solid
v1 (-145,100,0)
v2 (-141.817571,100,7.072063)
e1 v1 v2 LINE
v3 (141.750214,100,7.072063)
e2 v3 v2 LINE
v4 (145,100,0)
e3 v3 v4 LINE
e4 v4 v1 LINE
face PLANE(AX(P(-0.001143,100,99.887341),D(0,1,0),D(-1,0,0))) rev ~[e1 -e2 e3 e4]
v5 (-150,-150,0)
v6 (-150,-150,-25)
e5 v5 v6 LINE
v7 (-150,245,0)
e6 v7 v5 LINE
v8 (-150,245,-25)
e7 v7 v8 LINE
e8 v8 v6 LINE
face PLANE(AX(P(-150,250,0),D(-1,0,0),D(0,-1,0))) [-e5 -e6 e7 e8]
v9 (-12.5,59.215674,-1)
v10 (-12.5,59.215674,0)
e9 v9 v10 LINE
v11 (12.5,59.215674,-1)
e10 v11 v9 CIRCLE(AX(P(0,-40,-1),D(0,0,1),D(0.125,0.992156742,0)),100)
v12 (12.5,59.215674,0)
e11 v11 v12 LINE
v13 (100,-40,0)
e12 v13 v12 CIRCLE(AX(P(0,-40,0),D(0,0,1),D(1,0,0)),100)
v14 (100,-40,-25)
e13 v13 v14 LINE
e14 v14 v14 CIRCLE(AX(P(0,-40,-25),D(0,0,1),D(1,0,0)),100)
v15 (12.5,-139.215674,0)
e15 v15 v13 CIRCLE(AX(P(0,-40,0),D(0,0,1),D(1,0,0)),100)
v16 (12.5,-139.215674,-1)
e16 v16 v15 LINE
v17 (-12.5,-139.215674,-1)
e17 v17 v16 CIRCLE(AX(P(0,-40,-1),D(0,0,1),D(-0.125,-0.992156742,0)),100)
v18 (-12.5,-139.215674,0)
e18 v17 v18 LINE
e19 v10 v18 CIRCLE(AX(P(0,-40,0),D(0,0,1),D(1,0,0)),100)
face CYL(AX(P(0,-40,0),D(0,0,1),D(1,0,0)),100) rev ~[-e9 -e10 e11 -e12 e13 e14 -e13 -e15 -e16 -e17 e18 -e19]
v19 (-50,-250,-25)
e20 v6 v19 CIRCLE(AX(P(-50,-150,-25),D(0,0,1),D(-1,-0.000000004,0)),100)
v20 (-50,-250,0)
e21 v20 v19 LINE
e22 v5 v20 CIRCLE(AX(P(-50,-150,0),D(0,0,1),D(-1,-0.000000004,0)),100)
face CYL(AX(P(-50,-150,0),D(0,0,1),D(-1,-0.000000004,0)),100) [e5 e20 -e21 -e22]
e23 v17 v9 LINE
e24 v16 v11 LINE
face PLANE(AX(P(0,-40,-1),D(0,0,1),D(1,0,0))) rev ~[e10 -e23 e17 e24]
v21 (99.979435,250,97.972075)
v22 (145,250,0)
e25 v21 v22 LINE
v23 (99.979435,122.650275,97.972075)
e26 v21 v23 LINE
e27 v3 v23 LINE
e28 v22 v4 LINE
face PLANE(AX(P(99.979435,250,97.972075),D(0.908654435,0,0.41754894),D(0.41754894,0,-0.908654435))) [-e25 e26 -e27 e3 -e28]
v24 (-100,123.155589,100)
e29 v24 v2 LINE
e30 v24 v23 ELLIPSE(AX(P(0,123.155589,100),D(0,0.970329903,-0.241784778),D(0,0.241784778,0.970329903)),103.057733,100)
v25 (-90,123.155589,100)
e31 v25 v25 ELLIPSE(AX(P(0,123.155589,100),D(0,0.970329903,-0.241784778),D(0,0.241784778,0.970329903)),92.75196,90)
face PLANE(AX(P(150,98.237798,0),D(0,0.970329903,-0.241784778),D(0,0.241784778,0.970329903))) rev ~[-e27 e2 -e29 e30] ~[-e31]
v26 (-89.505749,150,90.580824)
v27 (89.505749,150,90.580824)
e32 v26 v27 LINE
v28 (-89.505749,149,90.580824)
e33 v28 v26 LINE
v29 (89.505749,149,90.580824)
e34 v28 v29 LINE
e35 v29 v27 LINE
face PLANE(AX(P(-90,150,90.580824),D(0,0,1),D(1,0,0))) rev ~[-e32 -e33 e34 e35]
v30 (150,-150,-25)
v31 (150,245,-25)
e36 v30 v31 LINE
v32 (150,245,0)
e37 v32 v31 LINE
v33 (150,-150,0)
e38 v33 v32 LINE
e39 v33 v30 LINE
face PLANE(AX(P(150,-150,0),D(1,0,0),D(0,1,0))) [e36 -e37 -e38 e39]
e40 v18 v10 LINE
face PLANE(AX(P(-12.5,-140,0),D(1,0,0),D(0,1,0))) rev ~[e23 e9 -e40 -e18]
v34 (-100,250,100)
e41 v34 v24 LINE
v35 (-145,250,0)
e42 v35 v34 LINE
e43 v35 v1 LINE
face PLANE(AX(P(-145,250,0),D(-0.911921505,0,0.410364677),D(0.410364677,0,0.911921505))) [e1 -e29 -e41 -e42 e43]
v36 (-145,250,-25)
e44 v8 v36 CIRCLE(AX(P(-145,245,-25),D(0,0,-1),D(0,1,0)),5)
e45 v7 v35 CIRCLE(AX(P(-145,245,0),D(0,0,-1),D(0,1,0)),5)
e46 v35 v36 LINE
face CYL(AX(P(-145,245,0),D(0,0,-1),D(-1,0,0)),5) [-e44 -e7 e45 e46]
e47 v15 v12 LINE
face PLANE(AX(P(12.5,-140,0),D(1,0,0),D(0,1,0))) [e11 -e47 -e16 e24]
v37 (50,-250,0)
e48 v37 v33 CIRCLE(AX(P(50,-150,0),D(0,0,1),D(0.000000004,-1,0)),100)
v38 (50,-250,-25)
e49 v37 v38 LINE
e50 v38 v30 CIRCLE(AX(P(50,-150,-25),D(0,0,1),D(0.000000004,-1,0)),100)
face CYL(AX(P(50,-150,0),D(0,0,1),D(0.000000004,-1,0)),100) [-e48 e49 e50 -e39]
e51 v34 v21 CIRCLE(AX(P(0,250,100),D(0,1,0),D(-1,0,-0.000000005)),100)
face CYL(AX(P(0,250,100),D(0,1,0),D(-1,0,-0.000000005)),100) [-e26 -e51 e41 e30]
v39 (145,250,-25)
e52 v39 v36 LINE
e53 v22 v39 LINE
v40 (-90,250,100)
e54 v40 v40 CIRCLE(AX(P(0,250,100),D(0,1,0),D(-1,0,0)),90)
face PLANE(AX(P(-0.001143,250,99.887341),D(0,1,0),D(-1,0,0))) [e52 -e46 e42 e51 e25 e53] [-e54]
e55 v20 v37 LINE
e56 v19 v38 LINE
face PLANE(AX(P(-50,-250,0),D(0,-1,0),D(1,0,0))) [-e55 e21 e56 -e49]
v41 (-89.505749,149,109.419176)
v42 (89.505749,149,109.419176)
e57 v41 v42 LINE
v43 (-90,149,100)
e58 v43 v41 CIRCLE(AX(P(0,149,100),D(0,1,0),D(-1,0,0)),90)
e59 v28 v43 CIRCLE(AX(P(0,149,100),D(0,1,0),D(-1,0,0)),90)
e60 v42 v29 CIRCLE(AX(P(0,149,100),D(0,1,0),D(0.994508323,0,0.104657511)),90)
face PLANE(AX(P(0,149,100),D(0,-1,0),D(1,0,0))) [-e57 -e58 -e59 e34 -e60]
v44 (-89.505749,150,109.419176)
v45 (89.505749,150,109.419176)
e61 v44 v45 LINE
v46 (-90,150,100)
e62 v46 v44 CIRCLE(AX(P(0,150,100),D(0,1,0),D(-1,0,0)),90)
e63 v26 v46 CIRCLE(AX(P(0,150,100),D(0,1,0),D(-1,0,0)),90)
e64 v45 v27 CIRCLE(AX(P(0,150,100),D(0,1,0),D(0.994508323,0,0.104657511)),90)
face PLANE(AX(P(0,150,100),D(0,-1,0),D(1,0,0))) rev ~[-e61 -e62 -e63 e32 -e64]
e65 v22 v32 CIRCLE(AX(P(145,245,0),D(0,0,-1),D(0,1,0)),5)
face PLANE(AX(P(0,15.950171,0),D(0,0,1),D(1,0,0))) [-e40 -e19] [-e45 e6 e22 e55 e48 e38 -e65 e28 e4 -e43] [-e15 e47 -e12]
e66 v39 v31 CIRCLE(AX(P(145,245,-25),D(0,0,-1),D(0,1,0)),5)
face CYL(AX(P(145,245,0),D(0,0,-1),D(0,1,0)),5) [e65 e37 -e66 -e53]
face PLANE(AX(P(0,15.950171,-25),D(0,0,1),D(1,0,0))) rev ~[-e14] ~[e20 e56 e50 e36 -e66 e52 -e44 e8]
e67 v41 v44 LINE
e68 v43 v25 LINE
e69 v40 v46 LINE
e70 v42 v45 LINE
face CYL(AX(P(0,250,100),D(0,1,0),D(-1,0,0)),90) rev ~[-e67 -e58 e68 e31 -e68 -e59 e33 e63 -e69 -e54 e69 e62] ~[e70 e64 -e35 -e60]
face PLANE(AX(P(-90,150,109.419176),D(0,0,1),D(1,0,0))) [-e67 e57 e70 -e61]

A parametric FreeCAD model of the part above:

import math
import FreeCAD as App
import Part
import Sketcher
from FreeCAD import Vector


def edges_at(feature, points):
    """Names of the edges that pass closest to the given points."""
    edges = feature.Shape.Edges
    near = lambda p: min(range(len(edges)), key=lambda i: edges[i].distToShape(Part.Vertex(*p))[0])
    return sorted({f"Edge{near(p) + 1}" for p in points})


def add_polygon(sketch, points):
    """Adds a closed chain of lines whose ends are joined by coincident constraints."""
    first, n = sketch.GeometryCount, len(points)
    for a, b in zip(points, points[1:] + points[:1]):
        sketch.addGeometry(Part.LineSegment(App.Vector(*a, 0), App.Vector(*b, 0)), False)
    for i in range(n):
        sketch.addConstraint(Sketcher.Constraint("Coincident", first + i, 2, first + (i + 1) % n, 1))

doc = App.newDocument("Part")
params = doc.addObject("Spreadsheet::Sheet", "Params")
for row, (alias, value) in enumerate([
    ("sketch1_diameter", "200 mm"),
    ("sketch1_width", "100 mm"),
    ("sketch1_height", "400 mm"),
    ("pad1_length", "25 mm"),
    ("fillet_radius", "5 mm"),
    ("sketch2_diameter", "180 mm"),
    ("sketch2_radius", "100 mm"),
    ("sketch2_width", "290 mm"),
    ("pad2_length", "150 mm"),
    ("sketch3_width", "50 mm"),
    ("sketch4_width", "25 mm"),
    ("sketch4_height", "200 mm"),
    ("pad3_length", "1 mm"),
    ("sketch5_width", "180 mm"),
    ("pad4_length", "1 mm"),
], start=1):
    params.set(f"A{row}", alias)
    params.set(f"B{row}", "=" + value)
    params.setAlias(f"B{row}", alias)

body = doc.addObject("PartDesign::Body", "Body")

# Sketch on XY plane
sketch1 = body.newObject("Sketcher::SketchObject", "Sketch")
sketch1.AttachmentSupport = (doc.getObject("XY_Plane"), [""])
sketch1.MapMode = "FlatFace"
sketch1.addGeometry([
    Part.ArcOfCircle(Part.Circle(Vector(-50, -150, 0), Vector(0, 0, 1), 100), math.radians(-180), math.radians(-90)),  # 0
    Part.LineSegment(Vector(-50, -250, 0), Vector(50, -250, 0)),  # 1
    Part.ArcOfCircle(Part.Circle(Vector(50, -150, 0), Vector(0, 0, 1), 100), math.radians(-90), math.radians(0)),  # 2
    Part.LineSegment(Vector(150, -150, 0), Vector(150, 250, 0)),  # 3
    Part.LineSegment(Vector(150, 250, 0), Vector(-150, 250, 0)),  # 4
    Part.LineSegment(Vector(-150, 250, 0), Vector(-150, -150, 0)),  # 5
    Part.Circle(Vector(0, -40, 0), Vector(0, 0, 1), 100),  # 6
], False)
sketch1.addConstraint([
    Sketcher.Constraint("Tangent", 0, 2, 1, 1),
    Sketcher.Constraint("Tangent", 1, 2, 2, 1),
    Sketcher.Constraint("Tangent", 2, 2, 3, 1),
    Sketcher.Constraint("Coincident", 3, 2, 4, 1),
    Sketcher.Constraint("Coincident", 4, 2, 5, 1),
    Sketcher.Constraint("Tangent", 5, 2, 0, 1),
    Sketcher.Constraint("Horizontal", 1),
    Sketcher.Constraint("Vertical", 3),
    Sketcher.Constraint("Horizontal", 4),
    Sketcher.Constraint("Vertical", 5),
    Sketcher.Constraint("Equal", 0, 2),
    Sketcher.Constraint("Equal", 2, 6),
    Sketcher.Constraint("PointOnObject", 6, 3, -2),
    Sketcher.Constraint("Diameter", 6, 200.0),
    Sketcher.Constraint("DistanceX", 1, 1, 1, 2, 100.0),
    Sketcher.Constraint("DistanceY", 3, 1, 3, 2, 400.0),
    Sketcher.Constraint("DistanceX", 0, 3, -1, 1, 50.0),
    Sketcher.Constraint("DistanceY", 0, 3, -1, 1, 150.0),
    Sketcher.Constraint("DistanceY", 6, 3, -1, 1, 40.0),
])
sketch1.setExpression("Constraints[13]", "Params.sketch1_diameter")
sketch1.setExpression("Constraints[14]", "Params.sketch1_width")
sketch1.setExpression("Constraints[15]", "Params.sketch1_height")
pad1 = body.newObject("PartDesign::Pad", "Pad")
pad1.Profile = sketch1
pad1.setExpression("Length", "Params.pad1_length")
pad1.Reversed = True
doc.recompute()

fillet = body.newObject("PartDesign::Fillet", "Fillet")
fillet.Base = (pad1, edges_at(pad1, [(150, 250, -12.5), (-150, 250, -12.5)]))
fillet.setExpression("Radius", "Params.fillet_radius")

# Sketch on XZ plane
sketch2 = body.newObject("Sketcher::SketchObject", "Sketch001")
sketch2.AttachmentSupport = (doc.getObject("XZ_Plane"), [""])
sketch2.MapMode = "FlatFace"
sketch2.AttachmentOffset = App.Placement(Vector(0, 0, -250), App.Rotation())
sketch2.addGeometry([
    Part.ArcOfCircle(Part.Circle(Vector(0, 100, 0), Vector(0, 0, 1), 100), math.radians(-1), math.radians(180)),  # 0
    Part.LineSegment(Vector(100, 98, 0), Vector(145, 0, 0)),  # 1
    Part.LineSegment(Vector(145, 0, 0), Vector(-145, 0, 0)),  # 2
    Part.LineSegment(Vector(-145, 0, 0), Vector(-100, 100, 0)),  # 3
    Part.Circle(Vector(0, 100, 0), Vector(0, 0, 1), 90),  # 4
], False)
sketch2.addConstraint([
    Sketcher.Constraint("Coincident", 0, 1, 1, 1),
    Sketcher.Constraint("Coincident", 1, 2, 2, 1),
    Sketcher.Constraint("Coincident", 2, 2, 3, 1),
    Sketcher.Constraint("Coincident", 3, 2, 0, 2),
    Sketcher.Constraint("Horizontal", 2),
    Sketcher.Constraint("Coincident", 4, 3, 0, 3),
    Sketcher.Constraint("Symmetric", 1, 2, 2, 2, -1, 1),
    Sketcher.Constraint("PointOnObject", 0, 3, -2),
    Sketcher.Constraint("Horizontal", 4, 3, 3, 2),
    Sketcher.Constraint("Diameter", 4, 180.0),
    Sketcher.Constraint("Radius", 0, 100.0),
    Sketcher.Constraint("DistanceX", 2, 2, 2, 1, 290.0),
    Sketcher.Constraint("DistanceY", -1, 1, 0, 3, 100.0),
    Sketcher.Constraint("Distance", 1, 107.82105),
])
sketch2.setExpression("Constraints[9]", "Params.sketch2_diameter")
sketch2.setExpression("Constraints[10]", "Params.sketch2_radius")
sketch2.setExpression("Constraints[11]", "Params.sketch2_width")
pad2 = body.newObject("PartDesign::Pad", "Pad001")
pad2.Profile = sketch2
pad2.setExpression("Length", "Params.pad2_length")

# Sketch on YZ plane
sketch3 = body.newObject("Sketcher::SketchObject", "Sketch002")
sketch3.AttachmentSupport = (doc.getObject("YZ_Plane"), [""])
sketch3.MapMode = "FlatFace"
sketch3.AttachmentOffset = App.Placement(Vector(0, 0, 150), App.Rotation())
add_polygon(sketch3, [(98, 201), (98, 0), (148, 201)])  # lines 0-2
sketch3.addConstraint([
    Sketcher.Constraint("Vertical", 0),
    Sketcher.Constraint("Horizontal", 2),
    Sketcher.Constraint("PointOnObject", 0, 2, -1),
    Sketcher.Constraint("DistanceX", 2, 2, 2, 1, 50.0),
    Sketcher.Constraint("DistanceY", 0, 2, 0, 1, 200.659841),
    Sketcher.Constraint("DistanceX", -1, 1, 0, 2, 98.237798),
])
sketch3.setExpression("Constraints[6]", "Params.sketch3_width")
pocket1 = body.newObject("PartDesign::Pocket", "Pocket")
pocket1.Profile = sketch3
pocket1.Type = "ThroughAll"

# Sketch on XY plane
sketch4 = body.newObject("Sketcher::SketchObject", "Sketch003")
sketch4.AttachmentSupport = (doc.getObject("XY_Plane"), [""])
sketch4.MapMode = "FlatFace"
add_polygon(sketch4, [(-12, 60), (-12, -140), (12, -140), (12, 60)])  # lines 0-3
sketch4.addConstraint([
    Sketcher.Constraint("Vertical", 0),
    Sketcher.Constraint("Horizontal", 1),
    Sketcher.Constraint("Vertical", 2),
    Sketcher.Constraint("Horizontal", 3),
    Sketcher.Constraint("DistanceX", 1, 1, 1, 2, 25.0),
    Sketcher.Constraint("DistanceY", 0, 2, 0, 1, 200.0),
    Sketcher.Constraint("DistanceY", 0, 2, -1, 1, 140.0),
    Sketcher.Constraint("DistanceX", 0, 2, -1, 1, 12.5),
])
sketch4.setExpression("Constraints[8]", "Params.sketch4_width")
sketch4.setExpression("Constraints[9]", "Params.sketch4_height")
pad3 = body.newObject("PartDesign::Pad", "Pad002")
pad3.Profile = sketch4
pad3.setExpression("Length", "Params.pad3_length")
pad3.Reversed = True

# Sketch on XZ plane
sketch5 = body.newObject("Sketcher::SketchObject", "Sketch004")
sketch5.AttachmentSupport = (doc.getObject("XZ_Plane"), [""])
sketch5.MapMode = "FlatFace"
sketch5.AttachmentOffset = App.Placement(Vector(0, 0, -150), App.Rotation())
add_polygon(sketch5, [(-90, 109), (-90, 91), (90, 91), (90, 109)])  # lines 0-3
sketch5.addConstraint([
    Sketcher.Constraint("Vertical", 0),
    Sketcher.Constraint("Horizontal", 1),
    Sketcher.Constraint("Vertical", 2),
    Sketcher.Constraint("Horizontal", 3),
    Sketcher.Constraint("DistanceX", 1, 1, 1, 2, 180.0),
    Sketcher.Constraint("DistanceX", 0, 2, -1, 1, 90.0),
    Sketcher.Constraint("DistanceY", 0, 2, 0, 1, 18.838352),
    Sketcher.Constraint("DistanceY", -1, 1, 0, 2, 90.580824),
])
sketch5.setExpression("Constraints[8]", "Params.sketch5_width")
pad4 = body.newObject("PartDesign::Pad", "Pad003")
pad4.Profile = sketch5
pad4.setExpression("Length", "Params.pad4_length")

doc.recompute()
